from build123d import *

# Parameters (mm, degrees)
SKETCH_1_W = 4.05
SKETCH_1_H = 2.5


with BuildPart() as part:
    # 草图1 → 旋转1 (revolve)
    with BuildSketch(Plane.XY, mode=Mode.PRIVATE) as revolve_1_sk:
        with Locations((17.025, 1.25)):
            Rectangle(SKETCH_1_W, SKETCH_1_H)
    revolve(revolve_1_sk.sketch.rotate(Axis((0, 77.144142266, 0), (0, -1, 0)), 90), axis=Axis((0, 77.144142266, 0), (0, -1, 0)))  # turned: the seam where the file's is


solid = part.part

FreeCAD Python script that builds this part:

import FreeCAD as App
import Part
import Sketcher


def add_polygon(sketch, points):
    """Adds a closed chain of lines whose ends are joined by coincident constraints."""
    first, n = sketch.GeometryCount, len(points)
    for a, b in zip(points, points[1:] + points[:1]):
        sketch.addGeometry(Part.LineSegment(App.Vector(*a, 0), App.Vector(*b, 0)), False)
    for i in range(n):
        sketch.addConstraint(Sketcher.Constraint("Coincident", first + i, 2, first + (i + 1) % n, 1))

doc = App.newDocument("Part")
body = doc.addObject("PartDesign::Body", "Body")

# Sketch on XY plane
sketch1 = doc.addObject("Sketcher::SketchObject", "Sketch")
body.addObject(sketch1)
sketch1.AttachmentSupport = (doc.XY_Plane, [""])
sketch1.MapMode = "FlatFace"
add_polygon(sketch1, [(15, 2.5), (15, 0), (19.05, 0), (19.05, 2.5)])  # lines 0-3
sketch1.addConstraint(Sketcher.Constraint("Vertical", 0))
sketch1.addConstraint(Sketcher.Constraint("Horizontal", 1))
sketch1.addConstraint(Sketcher.Constraint("Vertical", 2))
sketch1.addConstraint(Sketcher.Constraint("Horizontal", 3))
sketch1.addConstraint(Sketcher.Constraint("PointOnObject", 0, 2, -1))
sketch1.addConstraint(Sketcher.Constraint("DistanceY", 0, 2, 0, 1, 2.5))
sketch1.addConstraint(Sketcher.Constraint("DistanceX", -1, 1, 0, 2, 15.0))
sketch1.addConstraint(Sketcher.Constraint("DistanceX", 1, 1, 1, 2, 4.05))
revolution = doc.addObject("PartDesign::Revolution", "Revolution")
body.addObject(revolution)
revolution.Profile = sketch1
revolution.ReferenceAxis = (sketch1, ["V_Axis"])
revolution.Angle = 360

doc.recompute()
